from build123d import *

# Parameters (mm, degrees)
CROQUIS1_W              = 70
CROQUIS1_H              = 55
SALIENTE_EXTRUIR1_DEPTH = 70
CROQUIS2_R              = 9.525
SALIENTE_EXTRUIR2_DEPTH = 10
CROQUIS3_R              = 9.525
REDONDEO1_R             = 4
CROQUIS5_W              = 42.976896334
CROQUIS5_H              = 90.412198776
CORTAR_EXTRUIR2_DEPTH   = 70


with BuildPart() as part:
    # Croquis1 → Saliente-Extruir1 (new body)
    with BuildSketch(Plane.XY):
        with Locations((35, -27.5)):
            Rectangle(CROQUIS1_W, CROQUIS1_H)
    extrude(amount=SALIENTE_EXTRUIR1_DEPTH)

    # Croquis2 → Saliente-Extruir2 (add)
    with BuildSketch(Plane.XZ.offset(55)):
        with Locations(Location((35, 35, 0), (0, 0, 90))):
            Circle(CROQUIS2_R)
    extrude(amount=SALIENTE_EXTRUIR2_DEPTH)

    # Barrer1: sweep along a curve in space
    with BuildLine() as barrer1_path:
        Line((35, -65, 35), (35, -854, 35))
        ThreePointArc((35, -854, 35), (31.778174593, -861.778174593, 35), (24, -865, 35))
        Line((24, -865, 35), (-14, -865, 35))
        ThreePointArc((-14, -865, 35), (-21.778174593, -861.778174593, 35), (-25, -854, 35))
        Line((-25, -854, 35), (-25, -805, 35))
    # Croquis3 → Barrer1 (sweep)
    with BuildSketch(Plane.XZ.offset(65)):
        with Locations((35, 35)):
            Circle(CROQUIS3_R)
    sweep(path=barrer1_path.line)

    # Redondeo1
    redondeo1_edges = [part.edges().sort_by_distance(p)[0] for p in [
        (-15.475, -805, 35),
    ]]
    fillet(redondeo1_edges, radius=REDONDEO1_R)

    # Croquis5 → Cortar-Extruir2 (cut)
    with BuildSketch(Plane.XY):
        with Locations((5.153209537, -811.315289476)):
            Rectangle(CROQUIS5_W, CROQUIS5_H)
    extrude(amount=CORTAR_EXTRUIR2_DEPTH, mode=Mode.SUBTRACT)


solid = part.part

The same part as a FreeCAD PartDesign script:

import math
import FreeCAD as App
import Part
import Sketcher
Q = App.Units.Quantity


def edges_at(feature, points):
    """Names of the edges that pass closest to the given points."""
    edges = feature.Shape.Edges
    near = lambda p: min(range(len(edges)), key=lambda i: edges[i].distToShape(Part.Vertex(*p))[0])
    return sorted({f"Edge{near(p) + 1}" for p in points})

doc = App.newDocument("Part")
params = doc.addObject("Spreadsheet::Sheet", "Params")
for row, (alias, value) in enumerate([
    ("sketch1_width", "70 mm"),
    ("sketch1_height", "55 mm"),
    ("pad1_length", "70 mm"),
    ("sketch2_diameter", "19.05 mm"),
    ("pad2_length", "10 mm"),
    ("sketch3_diameter", "19.05 mm"),
    ("sketch4_radius", "11 mm"),
    ("sketch4_width", "38 mm"),
    ("sketch4_height", "789 mm"),
    ("sketch4_height2", "49 mm"),
    ("fillet_radius", "4 mm"),
    ("pocket1_length", "70 mm"),
], start=1):
    params.set(f"A{row}", alias)
    params.set(f"B{row}", "=" + value)
    params.setAlias(f"B{row}", alias)

body = doc.addObject("PartDesign::Body", "Body")

# Sketch on XY plane
sketch1 = body.newObject("Sketcher::SketchObject", "Sketch")
sketch1.AttachmentSupport = (doc.getObject("XY_Plane"), [""])
sketch1.MapMode = "FlatFace"
sketch1.addGeometry(Part.LineSegment(App.Vector(0, 0, 0), App.Vector(0, -55, 0)), False)
sketch1.addGeometry(Part.LineSegment(App.Vector(0, -55, 0), App.Vector(70, -55, 0)), False)
sketch1.addGeometry(Part.LineSegment(App.Vector(70, -55, 0), App.Vector(70, 0, 0)), False)
sketch1.addGeometry(Part.LineSegment(App.Vector(70, 0, 0), App.Vector(0, 0, 0)), False)
sketch1.addConstraint(Sketcher.Constraint("Coincident", 0, 2, 1, 1))
sketch1.addConstraint(Sketcher.Constraint("Coincident", 1, 2, 2, 1))
sketch1.addConstraint(Sketcher.Constraint("Coincident", 2, 2, 3, 1))
sketch1.addConstraint(Sketcher.Constraint("Coincident", 3, 2, 0, 1))
sketch1.addConstraint(Sketcher.Constraint("Vertical", 0))
sketch1.addConstraint(Sketcher.Constraint("Horizontal", 1))
sketch1.addConstraint(Sketcher.Constraint("Vertical", 2))
sketch1.addConstraint(Sketcher.Constraint("Horizontal", 3))
sketch1.addConstraint(Sketcher.Constraint("Coincident", 3, 2, -1, 1))
sketch1.addConstraint(Sketcher.Constraint("DistanceX", 1, 1, 1, 2, Q("70 mm")))
sketch1.addConstraint(Sketcher.Constraint("DistanceY", 0, 2, 0, 1, Q("55 mm")))
sketch1.setExpression("Constraints[9]", "Params.sketch1_width")
sketch1.setExpression("Constraints[10]", "Params.sketch1_height")
pad1 = body.newObject("PartDesign::Pad", "Pad")
pad1.Profile = sketch1
pad1.setExpression("Length", "Params.pad1_length")

# Sketch on XZ plane
sketch2 = body.newObject("Sketcher::SketchObject", "Sketch001")
sketch2.AttachmentSupport = (doc.getObject("XZ_Plane"), [""])
sketch2.MapMode = "FlatFace"
sketch2.AttachmentOffset = App.Placement(App.Vector(0, 0, 55), App.Rotation())
sketch2.addGeometry(Part.Circle(App.Vector(35, 35, 0), App.Vector(0, 0, 1), 9.525), False)
sketch2.addConstraint(Sketcher.Constraint("Diameter", 0, Q("19.05 mm")))
sketch2.addConstraint(Sketcher.Constraint("DistanceX", -1, 1, 0, 3, Q("35 mm")))
sketch2.addConstraint(Sketcher.Constraint("DistanceY", -1, 1, 0, 3, Q("35 mm")))
sketch2.setExpression("Constraints[0]", "Params.sketch2_diameter")
pad2 = body.newObject("PartDesign::Pad", "Pad001")
pad2.Profile = sketch2
pad2.setExpression("Length", "Params.pad2_length")

# Sketch on XZ plane
sketch3 = body.newObject("Sketcher::SketchObject", "Sketch002")
sketch3.AttachmentSupport = (doc.getObject("XZ_Plane"), [""])
sketch3.MapMode = "FlatFace"
sketch3.AttachmentOffset = App.Placement(App.Vector(0, 0, 65), App.Rotation())
sketch3.addGeometry(Part.Circle(App.Vector(35, 35, 0), App.Vector(0, 0, 1), 9.525), False)
sketch3.addConstraint(Sketcher.Constraint("Diameter", 0, Q("19.05 mm")))
sketch3.addConstraint(Sketcher.Constraint("DistanceX", -1, 1, 0, 3, Q("35 mm")))
sketch3.addConstraint(Sketcher.Constraint("DistanceY", -1, 1, 0, 3, Q("35 mm")))
sketch3.setExpression("Constraints[0]", "Params.sketch3_diameter")

# Sketch on XY plane
sketch4 = body.newObject("Sketcher::SketchObject", "Sketch003")
sketch4.AttachmentSupport = (doc.getObject("XY_Plane"), [""])
sketch4.MapMode = "FlatFace"
sketch4.AttachmentOffset = App.Placement(App.Vector(0, 0, 35), App.Rotation())
sketch4.addGeometry(Part.LineSegment(App.Vector(35, -65, 0), App.Vector(35, -854, 0)), False)
sketch4.addGeometry(Part.ArcOfCircle(Part.Circle(App.Vector(24, -854, 0), App.Vector(0, 0, 1), 11), math.radians(-90), math.radians(0)), False)
sketch4.addGeometry(Part.LineSegment(App.Vector(24, -865, 0), App.Vector(-14, -865, 0)), False)
sketch4.addGeometry(Part.ArcOfCircle(Part.Circle(App.Vector(-14, -854, 0), App.Vector(0, 0, 1), 11), math.radians(180), math.radians(270)), False)
sketch4.addGeometry(Part.LineSegment(App.Vector(-25, -854, 0), App.Vector(-25, -805, 0)), False)
sketch4.addConstraint(Sketcher.Constraint("Tangent", 0, 2, 1, 2))
sketch4.addConstraint(Sketcher.Constraint("Tangent", 1, 1, 2, 1))
sketch4.addConstraint(Sketcher.Constraint("Tangent", 2, 2, 3, 2))
sketch4.addConstraint(Sketcher.Constraint("Tangent", 3, 1, 4, 1))
sketch4.addConstraint(Sketcher.Constraint("Vertical", 0))
sketch4.addConstraint(Sketcher.Constraint("Horizontal", 2))
sketch4.addConstraint(Sketcher.Constraint("Vertical", 4))
sketch4.addConstraint(Sketcher.Constraint("Equal", 1, 3))
sketch4.addConstraint(Sketcher.Constraint("Radius", 1, Q("11 mm")))
sketch4.addConstraint(Sketcher.Constraint("DistanceX", 2, 2, 2, 1, Q("38 mm")))
sketch4.addConstraint(Sketcher.Constraint("DistanceY", 0, 2, 0, 1, Q("789 mm")))
sketch4.addConstraint(Sketcher.Constraint("DistanceY", 4, 1, 4, 2, Q("49 mm")))
sketch4.addConstraint(Sketcher.Constraint("DistanceX", -1, 1, 1, 3, Q("24 mm")))
sketch4.addConstraint(Sketcher.Constraint("DistanceY", 1, 3, -1, 1, Q("854 mm")))
sketch4.setExpression("Constraints[8]", "Params.sketch4_radius")
sketch4.setExpression("Constraints[9]", "Params.sketch4_width")
sketch4.setExpression("Constraints[10]", "Params.sketch4_height")
sketch4.setExpression("Constraints[11]", "Params.sketch4_height2")
doc.recompute()

additivepipe = body.newObject("PartDesign::AdditivePipe", "AdditivePipe")
additivepipe.Profile = sketch3
additivepipe.Spine = (sketch4, ["Edge1", "Edge2", "Edge3", "Edge4", "Edge5"])
doc.recompute()

fillet = body.newObject("PartDesign::Fillet", "Fillet")
fillet.Base = (additivepipe, edges_at(additivepipe, [(-15.475, -805, 35)]))
fillet.setExpression("Radius", "Params.fillet_radius")

# Sketch on XY plane
sketch5 = body.newObject("Sketcher::SketchObject", "Sketch004")
sketch5.AttachmentSupport = (doc.getObject("XY_Plane"), [""])
sketch5.MapMode = "FlatFace"
sketch5.addGeometry(Part.LineSegment(App.Vector(-16.335239, -766.10919, 0), App.Vector(-16.335239, -856.521389, 0)), False)
sketch5.addGeometry(Part.LineSegment(App.Vector(-16.335239, -856.521389, 0), App.Vector(26.641658, -856.521389, 0)), False)
sketch5.addGeometry(Part.LineSegment(App.Vector(26.641658, -856.521389, 0), App.Vector(26.641658, -766.10919, 0)), False)
sketch5.addGeometry(Part.LineSegment(App.Vector(26.641658, -766.10919, 0), App.Vector(-16.335239, -766.10919, 0)), False)
sketch5.addConstraint(Sketcher.Constraint("Coincident", 0, 2, 1, 1))
sketch5.addConstraint(Sketcher.Constraint("Coincident", 1, 2, 2, 1))
sketch5.addConstraint(Sketcher.Constraint("Coincident", 2, 2, 3, 1))
sketch5.addConstraint(Sketcher.Constraint("Coincident", 3, 2, 0, 1))
sketch5.addConstraint(Sketcher.Constraint("Vertical", 0))
sketch5.addConstraint(Sketcher.Constraint("Horizontal", 1))
sketch5.addConstraint(Sketcher.Constraint("Vertical", 2))
sketch5.addConstraint(Sketcher.Constraint("Horizontal", 3))
sketch5.addConstraint(Sketcher.Constraint("DistanceY", 0, 2, 0, 1, Q("90.412199 mm")))
sketch5.addConstraint(Sketcher.Constraint("DistanceX", 1, 1, 1, 2, Q("42.976896 mm")))
sketch5.addConstraint(Sketcher.Constraint("DistanceX", 0, 2, -1, 1, Q("16.335239 mm")))
sketch5.addConstraint(Sketcher.Constraint("DistanceY", 0, 2, -1, 1, Q("856.521389 mm")))
pocket1 = body.newObject("PartDesign::Pocket", "Pocket")
pocket1.Profile = sketch5
pocket1.setExpression("Length", "Params.pocket1_length")
pocket1.Reversed = True

doc.recompute()
